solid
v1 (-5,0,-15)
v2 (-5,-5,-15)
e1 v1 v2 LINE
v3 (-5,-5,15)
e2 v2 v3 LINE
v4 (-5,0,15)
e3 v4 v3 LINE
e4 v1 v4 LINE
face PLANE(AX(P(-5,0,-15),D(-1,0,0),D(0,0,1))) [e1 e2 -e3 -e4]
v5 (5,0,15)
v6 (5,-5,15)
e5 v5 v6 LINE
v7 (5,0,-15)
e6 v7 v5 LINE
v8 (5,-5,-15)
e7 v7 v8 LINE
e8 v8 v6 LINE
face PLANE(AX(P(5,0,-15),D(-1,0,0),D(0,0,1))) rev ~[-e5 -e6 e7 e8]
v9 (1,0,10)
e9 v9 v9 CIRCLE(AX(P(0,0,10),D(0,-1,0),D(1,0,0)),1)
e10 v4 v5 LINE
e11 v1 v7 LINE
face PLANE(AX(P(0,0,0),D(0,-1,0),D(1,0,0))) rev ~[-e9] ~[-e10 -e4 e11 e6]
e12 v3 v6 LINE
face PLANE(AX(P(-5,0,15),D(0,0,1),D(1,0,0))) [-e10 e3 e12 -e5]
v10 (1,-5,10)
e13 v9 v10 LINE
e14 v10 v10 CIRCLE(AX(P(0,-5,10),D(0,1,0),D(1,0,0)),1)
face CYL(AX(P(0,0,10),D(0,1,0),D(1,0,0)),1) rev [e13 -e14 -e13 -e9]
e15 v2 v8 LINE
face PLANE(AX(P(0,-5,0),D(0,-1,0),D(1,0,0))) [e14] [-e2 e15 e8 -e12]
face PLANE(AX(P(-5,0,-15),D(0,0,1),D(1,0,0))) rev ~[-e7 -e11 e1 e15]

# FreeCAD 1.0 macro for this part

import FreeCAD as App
import Part
import Sketcher
Q = App.Units.Quantity

doc = App.newDocument("Part")
body = doc.addObject("PartDesign::Body", "Body")

sketch1 = body.newObject("Sketcher::SketchObject", "Sketch")
sketch1.AttachmentSupport = (doc.getObject("XZ_Plane"), [""])
sketch1.MapMode = "FlatFace"
sketch1.addGeometry(Part.LineSegment(App.Vector(-5, 15, 0), App.Vector(-5, -15, 0)), False)
sketch1.addGeometry(Part.LineSegment(App.Vector(-5, -15, 0), App.Vector(5, -15, 0)), False)
sketch1.addGeometry(Part.LineSegment(App.Vector(5, -15, 0), App.Vector(5, 15, 0)), False)
sketch1.addGeometry(Part.LineSegment(App.Vector(5, 15, 0), App.Vector(-5, 15, 0)), False)
sketch1.addConstraint(Sketcher.Constraint("Coincident", 0, 2, 1, 1))
sketch1.addConstraint(Sketcher.Constraint("Coincident", 1, 2, 2, 1))
sketch1.addConstraint(Sketcher.Constraint("Coincident", 2, 2, 3, 1))
sketch1.addConstraint(Sketcher.Constraint("Coincident", 3, 2, 0, 1))
sketch1.addConstraint(Sketcher.Constraint("Vertical", 0))
sketch1.addConstraint(Sketcher.Constraint("Horizontal", 1))
sketch1.addConstraint(Sketcher.Constraint("Vertical", 2))
sketch1.addConstraint(Sketcher.Constraint("Horizontal", 3))
sketch1.addConstraint(Sketcher.Constraint("Symmetric", 0, 2, 2, 2, -1, 1))
sketch1.addConstraint(Sketcher.Constraint("DistanceX", 1, 1, 1, 2, Q("10 mm")))
sketch1.addConstraint(Sketcher.Constraint("DistanceY", 0, 2, 0, 1, Q("30 mm")))
pad1 = body.newObject("PartDesign::Pad", "Pad")
pad1.Profile = sketch1
pad1.Length = 5

sketch2 = body.newObject("Sketcher::SketchObject", "Sketch001")
sketch2.AttachmentSupport = (doc.getObject("XZ_Plane"), [""])
sketch2.MapMode = "FlatFace"
sketch2.addGeometry(Part.Circle(App.Vector(0, 10, 0), App.Vector(0, 0, 1), 1), False)
sketch2.addConstraint(Sketcher.Constraint("PointOnObject", 0, 3, -2))
sketch2.addConstraint(Sketcher.Constraint("Diameter", 0, Q("2 mm")))
sketch2.addConstraint(Sketcher.Constraint("DistanceY", -1, 1, 0, 3, Q("10 mm")))
pocket1 = body.newObject("PartDesign::Pocket", "Pocket")
pocket1.Profile = sketch2
pocket1.Length = 10
pocket1.Reversed = True

doc.recompute()
